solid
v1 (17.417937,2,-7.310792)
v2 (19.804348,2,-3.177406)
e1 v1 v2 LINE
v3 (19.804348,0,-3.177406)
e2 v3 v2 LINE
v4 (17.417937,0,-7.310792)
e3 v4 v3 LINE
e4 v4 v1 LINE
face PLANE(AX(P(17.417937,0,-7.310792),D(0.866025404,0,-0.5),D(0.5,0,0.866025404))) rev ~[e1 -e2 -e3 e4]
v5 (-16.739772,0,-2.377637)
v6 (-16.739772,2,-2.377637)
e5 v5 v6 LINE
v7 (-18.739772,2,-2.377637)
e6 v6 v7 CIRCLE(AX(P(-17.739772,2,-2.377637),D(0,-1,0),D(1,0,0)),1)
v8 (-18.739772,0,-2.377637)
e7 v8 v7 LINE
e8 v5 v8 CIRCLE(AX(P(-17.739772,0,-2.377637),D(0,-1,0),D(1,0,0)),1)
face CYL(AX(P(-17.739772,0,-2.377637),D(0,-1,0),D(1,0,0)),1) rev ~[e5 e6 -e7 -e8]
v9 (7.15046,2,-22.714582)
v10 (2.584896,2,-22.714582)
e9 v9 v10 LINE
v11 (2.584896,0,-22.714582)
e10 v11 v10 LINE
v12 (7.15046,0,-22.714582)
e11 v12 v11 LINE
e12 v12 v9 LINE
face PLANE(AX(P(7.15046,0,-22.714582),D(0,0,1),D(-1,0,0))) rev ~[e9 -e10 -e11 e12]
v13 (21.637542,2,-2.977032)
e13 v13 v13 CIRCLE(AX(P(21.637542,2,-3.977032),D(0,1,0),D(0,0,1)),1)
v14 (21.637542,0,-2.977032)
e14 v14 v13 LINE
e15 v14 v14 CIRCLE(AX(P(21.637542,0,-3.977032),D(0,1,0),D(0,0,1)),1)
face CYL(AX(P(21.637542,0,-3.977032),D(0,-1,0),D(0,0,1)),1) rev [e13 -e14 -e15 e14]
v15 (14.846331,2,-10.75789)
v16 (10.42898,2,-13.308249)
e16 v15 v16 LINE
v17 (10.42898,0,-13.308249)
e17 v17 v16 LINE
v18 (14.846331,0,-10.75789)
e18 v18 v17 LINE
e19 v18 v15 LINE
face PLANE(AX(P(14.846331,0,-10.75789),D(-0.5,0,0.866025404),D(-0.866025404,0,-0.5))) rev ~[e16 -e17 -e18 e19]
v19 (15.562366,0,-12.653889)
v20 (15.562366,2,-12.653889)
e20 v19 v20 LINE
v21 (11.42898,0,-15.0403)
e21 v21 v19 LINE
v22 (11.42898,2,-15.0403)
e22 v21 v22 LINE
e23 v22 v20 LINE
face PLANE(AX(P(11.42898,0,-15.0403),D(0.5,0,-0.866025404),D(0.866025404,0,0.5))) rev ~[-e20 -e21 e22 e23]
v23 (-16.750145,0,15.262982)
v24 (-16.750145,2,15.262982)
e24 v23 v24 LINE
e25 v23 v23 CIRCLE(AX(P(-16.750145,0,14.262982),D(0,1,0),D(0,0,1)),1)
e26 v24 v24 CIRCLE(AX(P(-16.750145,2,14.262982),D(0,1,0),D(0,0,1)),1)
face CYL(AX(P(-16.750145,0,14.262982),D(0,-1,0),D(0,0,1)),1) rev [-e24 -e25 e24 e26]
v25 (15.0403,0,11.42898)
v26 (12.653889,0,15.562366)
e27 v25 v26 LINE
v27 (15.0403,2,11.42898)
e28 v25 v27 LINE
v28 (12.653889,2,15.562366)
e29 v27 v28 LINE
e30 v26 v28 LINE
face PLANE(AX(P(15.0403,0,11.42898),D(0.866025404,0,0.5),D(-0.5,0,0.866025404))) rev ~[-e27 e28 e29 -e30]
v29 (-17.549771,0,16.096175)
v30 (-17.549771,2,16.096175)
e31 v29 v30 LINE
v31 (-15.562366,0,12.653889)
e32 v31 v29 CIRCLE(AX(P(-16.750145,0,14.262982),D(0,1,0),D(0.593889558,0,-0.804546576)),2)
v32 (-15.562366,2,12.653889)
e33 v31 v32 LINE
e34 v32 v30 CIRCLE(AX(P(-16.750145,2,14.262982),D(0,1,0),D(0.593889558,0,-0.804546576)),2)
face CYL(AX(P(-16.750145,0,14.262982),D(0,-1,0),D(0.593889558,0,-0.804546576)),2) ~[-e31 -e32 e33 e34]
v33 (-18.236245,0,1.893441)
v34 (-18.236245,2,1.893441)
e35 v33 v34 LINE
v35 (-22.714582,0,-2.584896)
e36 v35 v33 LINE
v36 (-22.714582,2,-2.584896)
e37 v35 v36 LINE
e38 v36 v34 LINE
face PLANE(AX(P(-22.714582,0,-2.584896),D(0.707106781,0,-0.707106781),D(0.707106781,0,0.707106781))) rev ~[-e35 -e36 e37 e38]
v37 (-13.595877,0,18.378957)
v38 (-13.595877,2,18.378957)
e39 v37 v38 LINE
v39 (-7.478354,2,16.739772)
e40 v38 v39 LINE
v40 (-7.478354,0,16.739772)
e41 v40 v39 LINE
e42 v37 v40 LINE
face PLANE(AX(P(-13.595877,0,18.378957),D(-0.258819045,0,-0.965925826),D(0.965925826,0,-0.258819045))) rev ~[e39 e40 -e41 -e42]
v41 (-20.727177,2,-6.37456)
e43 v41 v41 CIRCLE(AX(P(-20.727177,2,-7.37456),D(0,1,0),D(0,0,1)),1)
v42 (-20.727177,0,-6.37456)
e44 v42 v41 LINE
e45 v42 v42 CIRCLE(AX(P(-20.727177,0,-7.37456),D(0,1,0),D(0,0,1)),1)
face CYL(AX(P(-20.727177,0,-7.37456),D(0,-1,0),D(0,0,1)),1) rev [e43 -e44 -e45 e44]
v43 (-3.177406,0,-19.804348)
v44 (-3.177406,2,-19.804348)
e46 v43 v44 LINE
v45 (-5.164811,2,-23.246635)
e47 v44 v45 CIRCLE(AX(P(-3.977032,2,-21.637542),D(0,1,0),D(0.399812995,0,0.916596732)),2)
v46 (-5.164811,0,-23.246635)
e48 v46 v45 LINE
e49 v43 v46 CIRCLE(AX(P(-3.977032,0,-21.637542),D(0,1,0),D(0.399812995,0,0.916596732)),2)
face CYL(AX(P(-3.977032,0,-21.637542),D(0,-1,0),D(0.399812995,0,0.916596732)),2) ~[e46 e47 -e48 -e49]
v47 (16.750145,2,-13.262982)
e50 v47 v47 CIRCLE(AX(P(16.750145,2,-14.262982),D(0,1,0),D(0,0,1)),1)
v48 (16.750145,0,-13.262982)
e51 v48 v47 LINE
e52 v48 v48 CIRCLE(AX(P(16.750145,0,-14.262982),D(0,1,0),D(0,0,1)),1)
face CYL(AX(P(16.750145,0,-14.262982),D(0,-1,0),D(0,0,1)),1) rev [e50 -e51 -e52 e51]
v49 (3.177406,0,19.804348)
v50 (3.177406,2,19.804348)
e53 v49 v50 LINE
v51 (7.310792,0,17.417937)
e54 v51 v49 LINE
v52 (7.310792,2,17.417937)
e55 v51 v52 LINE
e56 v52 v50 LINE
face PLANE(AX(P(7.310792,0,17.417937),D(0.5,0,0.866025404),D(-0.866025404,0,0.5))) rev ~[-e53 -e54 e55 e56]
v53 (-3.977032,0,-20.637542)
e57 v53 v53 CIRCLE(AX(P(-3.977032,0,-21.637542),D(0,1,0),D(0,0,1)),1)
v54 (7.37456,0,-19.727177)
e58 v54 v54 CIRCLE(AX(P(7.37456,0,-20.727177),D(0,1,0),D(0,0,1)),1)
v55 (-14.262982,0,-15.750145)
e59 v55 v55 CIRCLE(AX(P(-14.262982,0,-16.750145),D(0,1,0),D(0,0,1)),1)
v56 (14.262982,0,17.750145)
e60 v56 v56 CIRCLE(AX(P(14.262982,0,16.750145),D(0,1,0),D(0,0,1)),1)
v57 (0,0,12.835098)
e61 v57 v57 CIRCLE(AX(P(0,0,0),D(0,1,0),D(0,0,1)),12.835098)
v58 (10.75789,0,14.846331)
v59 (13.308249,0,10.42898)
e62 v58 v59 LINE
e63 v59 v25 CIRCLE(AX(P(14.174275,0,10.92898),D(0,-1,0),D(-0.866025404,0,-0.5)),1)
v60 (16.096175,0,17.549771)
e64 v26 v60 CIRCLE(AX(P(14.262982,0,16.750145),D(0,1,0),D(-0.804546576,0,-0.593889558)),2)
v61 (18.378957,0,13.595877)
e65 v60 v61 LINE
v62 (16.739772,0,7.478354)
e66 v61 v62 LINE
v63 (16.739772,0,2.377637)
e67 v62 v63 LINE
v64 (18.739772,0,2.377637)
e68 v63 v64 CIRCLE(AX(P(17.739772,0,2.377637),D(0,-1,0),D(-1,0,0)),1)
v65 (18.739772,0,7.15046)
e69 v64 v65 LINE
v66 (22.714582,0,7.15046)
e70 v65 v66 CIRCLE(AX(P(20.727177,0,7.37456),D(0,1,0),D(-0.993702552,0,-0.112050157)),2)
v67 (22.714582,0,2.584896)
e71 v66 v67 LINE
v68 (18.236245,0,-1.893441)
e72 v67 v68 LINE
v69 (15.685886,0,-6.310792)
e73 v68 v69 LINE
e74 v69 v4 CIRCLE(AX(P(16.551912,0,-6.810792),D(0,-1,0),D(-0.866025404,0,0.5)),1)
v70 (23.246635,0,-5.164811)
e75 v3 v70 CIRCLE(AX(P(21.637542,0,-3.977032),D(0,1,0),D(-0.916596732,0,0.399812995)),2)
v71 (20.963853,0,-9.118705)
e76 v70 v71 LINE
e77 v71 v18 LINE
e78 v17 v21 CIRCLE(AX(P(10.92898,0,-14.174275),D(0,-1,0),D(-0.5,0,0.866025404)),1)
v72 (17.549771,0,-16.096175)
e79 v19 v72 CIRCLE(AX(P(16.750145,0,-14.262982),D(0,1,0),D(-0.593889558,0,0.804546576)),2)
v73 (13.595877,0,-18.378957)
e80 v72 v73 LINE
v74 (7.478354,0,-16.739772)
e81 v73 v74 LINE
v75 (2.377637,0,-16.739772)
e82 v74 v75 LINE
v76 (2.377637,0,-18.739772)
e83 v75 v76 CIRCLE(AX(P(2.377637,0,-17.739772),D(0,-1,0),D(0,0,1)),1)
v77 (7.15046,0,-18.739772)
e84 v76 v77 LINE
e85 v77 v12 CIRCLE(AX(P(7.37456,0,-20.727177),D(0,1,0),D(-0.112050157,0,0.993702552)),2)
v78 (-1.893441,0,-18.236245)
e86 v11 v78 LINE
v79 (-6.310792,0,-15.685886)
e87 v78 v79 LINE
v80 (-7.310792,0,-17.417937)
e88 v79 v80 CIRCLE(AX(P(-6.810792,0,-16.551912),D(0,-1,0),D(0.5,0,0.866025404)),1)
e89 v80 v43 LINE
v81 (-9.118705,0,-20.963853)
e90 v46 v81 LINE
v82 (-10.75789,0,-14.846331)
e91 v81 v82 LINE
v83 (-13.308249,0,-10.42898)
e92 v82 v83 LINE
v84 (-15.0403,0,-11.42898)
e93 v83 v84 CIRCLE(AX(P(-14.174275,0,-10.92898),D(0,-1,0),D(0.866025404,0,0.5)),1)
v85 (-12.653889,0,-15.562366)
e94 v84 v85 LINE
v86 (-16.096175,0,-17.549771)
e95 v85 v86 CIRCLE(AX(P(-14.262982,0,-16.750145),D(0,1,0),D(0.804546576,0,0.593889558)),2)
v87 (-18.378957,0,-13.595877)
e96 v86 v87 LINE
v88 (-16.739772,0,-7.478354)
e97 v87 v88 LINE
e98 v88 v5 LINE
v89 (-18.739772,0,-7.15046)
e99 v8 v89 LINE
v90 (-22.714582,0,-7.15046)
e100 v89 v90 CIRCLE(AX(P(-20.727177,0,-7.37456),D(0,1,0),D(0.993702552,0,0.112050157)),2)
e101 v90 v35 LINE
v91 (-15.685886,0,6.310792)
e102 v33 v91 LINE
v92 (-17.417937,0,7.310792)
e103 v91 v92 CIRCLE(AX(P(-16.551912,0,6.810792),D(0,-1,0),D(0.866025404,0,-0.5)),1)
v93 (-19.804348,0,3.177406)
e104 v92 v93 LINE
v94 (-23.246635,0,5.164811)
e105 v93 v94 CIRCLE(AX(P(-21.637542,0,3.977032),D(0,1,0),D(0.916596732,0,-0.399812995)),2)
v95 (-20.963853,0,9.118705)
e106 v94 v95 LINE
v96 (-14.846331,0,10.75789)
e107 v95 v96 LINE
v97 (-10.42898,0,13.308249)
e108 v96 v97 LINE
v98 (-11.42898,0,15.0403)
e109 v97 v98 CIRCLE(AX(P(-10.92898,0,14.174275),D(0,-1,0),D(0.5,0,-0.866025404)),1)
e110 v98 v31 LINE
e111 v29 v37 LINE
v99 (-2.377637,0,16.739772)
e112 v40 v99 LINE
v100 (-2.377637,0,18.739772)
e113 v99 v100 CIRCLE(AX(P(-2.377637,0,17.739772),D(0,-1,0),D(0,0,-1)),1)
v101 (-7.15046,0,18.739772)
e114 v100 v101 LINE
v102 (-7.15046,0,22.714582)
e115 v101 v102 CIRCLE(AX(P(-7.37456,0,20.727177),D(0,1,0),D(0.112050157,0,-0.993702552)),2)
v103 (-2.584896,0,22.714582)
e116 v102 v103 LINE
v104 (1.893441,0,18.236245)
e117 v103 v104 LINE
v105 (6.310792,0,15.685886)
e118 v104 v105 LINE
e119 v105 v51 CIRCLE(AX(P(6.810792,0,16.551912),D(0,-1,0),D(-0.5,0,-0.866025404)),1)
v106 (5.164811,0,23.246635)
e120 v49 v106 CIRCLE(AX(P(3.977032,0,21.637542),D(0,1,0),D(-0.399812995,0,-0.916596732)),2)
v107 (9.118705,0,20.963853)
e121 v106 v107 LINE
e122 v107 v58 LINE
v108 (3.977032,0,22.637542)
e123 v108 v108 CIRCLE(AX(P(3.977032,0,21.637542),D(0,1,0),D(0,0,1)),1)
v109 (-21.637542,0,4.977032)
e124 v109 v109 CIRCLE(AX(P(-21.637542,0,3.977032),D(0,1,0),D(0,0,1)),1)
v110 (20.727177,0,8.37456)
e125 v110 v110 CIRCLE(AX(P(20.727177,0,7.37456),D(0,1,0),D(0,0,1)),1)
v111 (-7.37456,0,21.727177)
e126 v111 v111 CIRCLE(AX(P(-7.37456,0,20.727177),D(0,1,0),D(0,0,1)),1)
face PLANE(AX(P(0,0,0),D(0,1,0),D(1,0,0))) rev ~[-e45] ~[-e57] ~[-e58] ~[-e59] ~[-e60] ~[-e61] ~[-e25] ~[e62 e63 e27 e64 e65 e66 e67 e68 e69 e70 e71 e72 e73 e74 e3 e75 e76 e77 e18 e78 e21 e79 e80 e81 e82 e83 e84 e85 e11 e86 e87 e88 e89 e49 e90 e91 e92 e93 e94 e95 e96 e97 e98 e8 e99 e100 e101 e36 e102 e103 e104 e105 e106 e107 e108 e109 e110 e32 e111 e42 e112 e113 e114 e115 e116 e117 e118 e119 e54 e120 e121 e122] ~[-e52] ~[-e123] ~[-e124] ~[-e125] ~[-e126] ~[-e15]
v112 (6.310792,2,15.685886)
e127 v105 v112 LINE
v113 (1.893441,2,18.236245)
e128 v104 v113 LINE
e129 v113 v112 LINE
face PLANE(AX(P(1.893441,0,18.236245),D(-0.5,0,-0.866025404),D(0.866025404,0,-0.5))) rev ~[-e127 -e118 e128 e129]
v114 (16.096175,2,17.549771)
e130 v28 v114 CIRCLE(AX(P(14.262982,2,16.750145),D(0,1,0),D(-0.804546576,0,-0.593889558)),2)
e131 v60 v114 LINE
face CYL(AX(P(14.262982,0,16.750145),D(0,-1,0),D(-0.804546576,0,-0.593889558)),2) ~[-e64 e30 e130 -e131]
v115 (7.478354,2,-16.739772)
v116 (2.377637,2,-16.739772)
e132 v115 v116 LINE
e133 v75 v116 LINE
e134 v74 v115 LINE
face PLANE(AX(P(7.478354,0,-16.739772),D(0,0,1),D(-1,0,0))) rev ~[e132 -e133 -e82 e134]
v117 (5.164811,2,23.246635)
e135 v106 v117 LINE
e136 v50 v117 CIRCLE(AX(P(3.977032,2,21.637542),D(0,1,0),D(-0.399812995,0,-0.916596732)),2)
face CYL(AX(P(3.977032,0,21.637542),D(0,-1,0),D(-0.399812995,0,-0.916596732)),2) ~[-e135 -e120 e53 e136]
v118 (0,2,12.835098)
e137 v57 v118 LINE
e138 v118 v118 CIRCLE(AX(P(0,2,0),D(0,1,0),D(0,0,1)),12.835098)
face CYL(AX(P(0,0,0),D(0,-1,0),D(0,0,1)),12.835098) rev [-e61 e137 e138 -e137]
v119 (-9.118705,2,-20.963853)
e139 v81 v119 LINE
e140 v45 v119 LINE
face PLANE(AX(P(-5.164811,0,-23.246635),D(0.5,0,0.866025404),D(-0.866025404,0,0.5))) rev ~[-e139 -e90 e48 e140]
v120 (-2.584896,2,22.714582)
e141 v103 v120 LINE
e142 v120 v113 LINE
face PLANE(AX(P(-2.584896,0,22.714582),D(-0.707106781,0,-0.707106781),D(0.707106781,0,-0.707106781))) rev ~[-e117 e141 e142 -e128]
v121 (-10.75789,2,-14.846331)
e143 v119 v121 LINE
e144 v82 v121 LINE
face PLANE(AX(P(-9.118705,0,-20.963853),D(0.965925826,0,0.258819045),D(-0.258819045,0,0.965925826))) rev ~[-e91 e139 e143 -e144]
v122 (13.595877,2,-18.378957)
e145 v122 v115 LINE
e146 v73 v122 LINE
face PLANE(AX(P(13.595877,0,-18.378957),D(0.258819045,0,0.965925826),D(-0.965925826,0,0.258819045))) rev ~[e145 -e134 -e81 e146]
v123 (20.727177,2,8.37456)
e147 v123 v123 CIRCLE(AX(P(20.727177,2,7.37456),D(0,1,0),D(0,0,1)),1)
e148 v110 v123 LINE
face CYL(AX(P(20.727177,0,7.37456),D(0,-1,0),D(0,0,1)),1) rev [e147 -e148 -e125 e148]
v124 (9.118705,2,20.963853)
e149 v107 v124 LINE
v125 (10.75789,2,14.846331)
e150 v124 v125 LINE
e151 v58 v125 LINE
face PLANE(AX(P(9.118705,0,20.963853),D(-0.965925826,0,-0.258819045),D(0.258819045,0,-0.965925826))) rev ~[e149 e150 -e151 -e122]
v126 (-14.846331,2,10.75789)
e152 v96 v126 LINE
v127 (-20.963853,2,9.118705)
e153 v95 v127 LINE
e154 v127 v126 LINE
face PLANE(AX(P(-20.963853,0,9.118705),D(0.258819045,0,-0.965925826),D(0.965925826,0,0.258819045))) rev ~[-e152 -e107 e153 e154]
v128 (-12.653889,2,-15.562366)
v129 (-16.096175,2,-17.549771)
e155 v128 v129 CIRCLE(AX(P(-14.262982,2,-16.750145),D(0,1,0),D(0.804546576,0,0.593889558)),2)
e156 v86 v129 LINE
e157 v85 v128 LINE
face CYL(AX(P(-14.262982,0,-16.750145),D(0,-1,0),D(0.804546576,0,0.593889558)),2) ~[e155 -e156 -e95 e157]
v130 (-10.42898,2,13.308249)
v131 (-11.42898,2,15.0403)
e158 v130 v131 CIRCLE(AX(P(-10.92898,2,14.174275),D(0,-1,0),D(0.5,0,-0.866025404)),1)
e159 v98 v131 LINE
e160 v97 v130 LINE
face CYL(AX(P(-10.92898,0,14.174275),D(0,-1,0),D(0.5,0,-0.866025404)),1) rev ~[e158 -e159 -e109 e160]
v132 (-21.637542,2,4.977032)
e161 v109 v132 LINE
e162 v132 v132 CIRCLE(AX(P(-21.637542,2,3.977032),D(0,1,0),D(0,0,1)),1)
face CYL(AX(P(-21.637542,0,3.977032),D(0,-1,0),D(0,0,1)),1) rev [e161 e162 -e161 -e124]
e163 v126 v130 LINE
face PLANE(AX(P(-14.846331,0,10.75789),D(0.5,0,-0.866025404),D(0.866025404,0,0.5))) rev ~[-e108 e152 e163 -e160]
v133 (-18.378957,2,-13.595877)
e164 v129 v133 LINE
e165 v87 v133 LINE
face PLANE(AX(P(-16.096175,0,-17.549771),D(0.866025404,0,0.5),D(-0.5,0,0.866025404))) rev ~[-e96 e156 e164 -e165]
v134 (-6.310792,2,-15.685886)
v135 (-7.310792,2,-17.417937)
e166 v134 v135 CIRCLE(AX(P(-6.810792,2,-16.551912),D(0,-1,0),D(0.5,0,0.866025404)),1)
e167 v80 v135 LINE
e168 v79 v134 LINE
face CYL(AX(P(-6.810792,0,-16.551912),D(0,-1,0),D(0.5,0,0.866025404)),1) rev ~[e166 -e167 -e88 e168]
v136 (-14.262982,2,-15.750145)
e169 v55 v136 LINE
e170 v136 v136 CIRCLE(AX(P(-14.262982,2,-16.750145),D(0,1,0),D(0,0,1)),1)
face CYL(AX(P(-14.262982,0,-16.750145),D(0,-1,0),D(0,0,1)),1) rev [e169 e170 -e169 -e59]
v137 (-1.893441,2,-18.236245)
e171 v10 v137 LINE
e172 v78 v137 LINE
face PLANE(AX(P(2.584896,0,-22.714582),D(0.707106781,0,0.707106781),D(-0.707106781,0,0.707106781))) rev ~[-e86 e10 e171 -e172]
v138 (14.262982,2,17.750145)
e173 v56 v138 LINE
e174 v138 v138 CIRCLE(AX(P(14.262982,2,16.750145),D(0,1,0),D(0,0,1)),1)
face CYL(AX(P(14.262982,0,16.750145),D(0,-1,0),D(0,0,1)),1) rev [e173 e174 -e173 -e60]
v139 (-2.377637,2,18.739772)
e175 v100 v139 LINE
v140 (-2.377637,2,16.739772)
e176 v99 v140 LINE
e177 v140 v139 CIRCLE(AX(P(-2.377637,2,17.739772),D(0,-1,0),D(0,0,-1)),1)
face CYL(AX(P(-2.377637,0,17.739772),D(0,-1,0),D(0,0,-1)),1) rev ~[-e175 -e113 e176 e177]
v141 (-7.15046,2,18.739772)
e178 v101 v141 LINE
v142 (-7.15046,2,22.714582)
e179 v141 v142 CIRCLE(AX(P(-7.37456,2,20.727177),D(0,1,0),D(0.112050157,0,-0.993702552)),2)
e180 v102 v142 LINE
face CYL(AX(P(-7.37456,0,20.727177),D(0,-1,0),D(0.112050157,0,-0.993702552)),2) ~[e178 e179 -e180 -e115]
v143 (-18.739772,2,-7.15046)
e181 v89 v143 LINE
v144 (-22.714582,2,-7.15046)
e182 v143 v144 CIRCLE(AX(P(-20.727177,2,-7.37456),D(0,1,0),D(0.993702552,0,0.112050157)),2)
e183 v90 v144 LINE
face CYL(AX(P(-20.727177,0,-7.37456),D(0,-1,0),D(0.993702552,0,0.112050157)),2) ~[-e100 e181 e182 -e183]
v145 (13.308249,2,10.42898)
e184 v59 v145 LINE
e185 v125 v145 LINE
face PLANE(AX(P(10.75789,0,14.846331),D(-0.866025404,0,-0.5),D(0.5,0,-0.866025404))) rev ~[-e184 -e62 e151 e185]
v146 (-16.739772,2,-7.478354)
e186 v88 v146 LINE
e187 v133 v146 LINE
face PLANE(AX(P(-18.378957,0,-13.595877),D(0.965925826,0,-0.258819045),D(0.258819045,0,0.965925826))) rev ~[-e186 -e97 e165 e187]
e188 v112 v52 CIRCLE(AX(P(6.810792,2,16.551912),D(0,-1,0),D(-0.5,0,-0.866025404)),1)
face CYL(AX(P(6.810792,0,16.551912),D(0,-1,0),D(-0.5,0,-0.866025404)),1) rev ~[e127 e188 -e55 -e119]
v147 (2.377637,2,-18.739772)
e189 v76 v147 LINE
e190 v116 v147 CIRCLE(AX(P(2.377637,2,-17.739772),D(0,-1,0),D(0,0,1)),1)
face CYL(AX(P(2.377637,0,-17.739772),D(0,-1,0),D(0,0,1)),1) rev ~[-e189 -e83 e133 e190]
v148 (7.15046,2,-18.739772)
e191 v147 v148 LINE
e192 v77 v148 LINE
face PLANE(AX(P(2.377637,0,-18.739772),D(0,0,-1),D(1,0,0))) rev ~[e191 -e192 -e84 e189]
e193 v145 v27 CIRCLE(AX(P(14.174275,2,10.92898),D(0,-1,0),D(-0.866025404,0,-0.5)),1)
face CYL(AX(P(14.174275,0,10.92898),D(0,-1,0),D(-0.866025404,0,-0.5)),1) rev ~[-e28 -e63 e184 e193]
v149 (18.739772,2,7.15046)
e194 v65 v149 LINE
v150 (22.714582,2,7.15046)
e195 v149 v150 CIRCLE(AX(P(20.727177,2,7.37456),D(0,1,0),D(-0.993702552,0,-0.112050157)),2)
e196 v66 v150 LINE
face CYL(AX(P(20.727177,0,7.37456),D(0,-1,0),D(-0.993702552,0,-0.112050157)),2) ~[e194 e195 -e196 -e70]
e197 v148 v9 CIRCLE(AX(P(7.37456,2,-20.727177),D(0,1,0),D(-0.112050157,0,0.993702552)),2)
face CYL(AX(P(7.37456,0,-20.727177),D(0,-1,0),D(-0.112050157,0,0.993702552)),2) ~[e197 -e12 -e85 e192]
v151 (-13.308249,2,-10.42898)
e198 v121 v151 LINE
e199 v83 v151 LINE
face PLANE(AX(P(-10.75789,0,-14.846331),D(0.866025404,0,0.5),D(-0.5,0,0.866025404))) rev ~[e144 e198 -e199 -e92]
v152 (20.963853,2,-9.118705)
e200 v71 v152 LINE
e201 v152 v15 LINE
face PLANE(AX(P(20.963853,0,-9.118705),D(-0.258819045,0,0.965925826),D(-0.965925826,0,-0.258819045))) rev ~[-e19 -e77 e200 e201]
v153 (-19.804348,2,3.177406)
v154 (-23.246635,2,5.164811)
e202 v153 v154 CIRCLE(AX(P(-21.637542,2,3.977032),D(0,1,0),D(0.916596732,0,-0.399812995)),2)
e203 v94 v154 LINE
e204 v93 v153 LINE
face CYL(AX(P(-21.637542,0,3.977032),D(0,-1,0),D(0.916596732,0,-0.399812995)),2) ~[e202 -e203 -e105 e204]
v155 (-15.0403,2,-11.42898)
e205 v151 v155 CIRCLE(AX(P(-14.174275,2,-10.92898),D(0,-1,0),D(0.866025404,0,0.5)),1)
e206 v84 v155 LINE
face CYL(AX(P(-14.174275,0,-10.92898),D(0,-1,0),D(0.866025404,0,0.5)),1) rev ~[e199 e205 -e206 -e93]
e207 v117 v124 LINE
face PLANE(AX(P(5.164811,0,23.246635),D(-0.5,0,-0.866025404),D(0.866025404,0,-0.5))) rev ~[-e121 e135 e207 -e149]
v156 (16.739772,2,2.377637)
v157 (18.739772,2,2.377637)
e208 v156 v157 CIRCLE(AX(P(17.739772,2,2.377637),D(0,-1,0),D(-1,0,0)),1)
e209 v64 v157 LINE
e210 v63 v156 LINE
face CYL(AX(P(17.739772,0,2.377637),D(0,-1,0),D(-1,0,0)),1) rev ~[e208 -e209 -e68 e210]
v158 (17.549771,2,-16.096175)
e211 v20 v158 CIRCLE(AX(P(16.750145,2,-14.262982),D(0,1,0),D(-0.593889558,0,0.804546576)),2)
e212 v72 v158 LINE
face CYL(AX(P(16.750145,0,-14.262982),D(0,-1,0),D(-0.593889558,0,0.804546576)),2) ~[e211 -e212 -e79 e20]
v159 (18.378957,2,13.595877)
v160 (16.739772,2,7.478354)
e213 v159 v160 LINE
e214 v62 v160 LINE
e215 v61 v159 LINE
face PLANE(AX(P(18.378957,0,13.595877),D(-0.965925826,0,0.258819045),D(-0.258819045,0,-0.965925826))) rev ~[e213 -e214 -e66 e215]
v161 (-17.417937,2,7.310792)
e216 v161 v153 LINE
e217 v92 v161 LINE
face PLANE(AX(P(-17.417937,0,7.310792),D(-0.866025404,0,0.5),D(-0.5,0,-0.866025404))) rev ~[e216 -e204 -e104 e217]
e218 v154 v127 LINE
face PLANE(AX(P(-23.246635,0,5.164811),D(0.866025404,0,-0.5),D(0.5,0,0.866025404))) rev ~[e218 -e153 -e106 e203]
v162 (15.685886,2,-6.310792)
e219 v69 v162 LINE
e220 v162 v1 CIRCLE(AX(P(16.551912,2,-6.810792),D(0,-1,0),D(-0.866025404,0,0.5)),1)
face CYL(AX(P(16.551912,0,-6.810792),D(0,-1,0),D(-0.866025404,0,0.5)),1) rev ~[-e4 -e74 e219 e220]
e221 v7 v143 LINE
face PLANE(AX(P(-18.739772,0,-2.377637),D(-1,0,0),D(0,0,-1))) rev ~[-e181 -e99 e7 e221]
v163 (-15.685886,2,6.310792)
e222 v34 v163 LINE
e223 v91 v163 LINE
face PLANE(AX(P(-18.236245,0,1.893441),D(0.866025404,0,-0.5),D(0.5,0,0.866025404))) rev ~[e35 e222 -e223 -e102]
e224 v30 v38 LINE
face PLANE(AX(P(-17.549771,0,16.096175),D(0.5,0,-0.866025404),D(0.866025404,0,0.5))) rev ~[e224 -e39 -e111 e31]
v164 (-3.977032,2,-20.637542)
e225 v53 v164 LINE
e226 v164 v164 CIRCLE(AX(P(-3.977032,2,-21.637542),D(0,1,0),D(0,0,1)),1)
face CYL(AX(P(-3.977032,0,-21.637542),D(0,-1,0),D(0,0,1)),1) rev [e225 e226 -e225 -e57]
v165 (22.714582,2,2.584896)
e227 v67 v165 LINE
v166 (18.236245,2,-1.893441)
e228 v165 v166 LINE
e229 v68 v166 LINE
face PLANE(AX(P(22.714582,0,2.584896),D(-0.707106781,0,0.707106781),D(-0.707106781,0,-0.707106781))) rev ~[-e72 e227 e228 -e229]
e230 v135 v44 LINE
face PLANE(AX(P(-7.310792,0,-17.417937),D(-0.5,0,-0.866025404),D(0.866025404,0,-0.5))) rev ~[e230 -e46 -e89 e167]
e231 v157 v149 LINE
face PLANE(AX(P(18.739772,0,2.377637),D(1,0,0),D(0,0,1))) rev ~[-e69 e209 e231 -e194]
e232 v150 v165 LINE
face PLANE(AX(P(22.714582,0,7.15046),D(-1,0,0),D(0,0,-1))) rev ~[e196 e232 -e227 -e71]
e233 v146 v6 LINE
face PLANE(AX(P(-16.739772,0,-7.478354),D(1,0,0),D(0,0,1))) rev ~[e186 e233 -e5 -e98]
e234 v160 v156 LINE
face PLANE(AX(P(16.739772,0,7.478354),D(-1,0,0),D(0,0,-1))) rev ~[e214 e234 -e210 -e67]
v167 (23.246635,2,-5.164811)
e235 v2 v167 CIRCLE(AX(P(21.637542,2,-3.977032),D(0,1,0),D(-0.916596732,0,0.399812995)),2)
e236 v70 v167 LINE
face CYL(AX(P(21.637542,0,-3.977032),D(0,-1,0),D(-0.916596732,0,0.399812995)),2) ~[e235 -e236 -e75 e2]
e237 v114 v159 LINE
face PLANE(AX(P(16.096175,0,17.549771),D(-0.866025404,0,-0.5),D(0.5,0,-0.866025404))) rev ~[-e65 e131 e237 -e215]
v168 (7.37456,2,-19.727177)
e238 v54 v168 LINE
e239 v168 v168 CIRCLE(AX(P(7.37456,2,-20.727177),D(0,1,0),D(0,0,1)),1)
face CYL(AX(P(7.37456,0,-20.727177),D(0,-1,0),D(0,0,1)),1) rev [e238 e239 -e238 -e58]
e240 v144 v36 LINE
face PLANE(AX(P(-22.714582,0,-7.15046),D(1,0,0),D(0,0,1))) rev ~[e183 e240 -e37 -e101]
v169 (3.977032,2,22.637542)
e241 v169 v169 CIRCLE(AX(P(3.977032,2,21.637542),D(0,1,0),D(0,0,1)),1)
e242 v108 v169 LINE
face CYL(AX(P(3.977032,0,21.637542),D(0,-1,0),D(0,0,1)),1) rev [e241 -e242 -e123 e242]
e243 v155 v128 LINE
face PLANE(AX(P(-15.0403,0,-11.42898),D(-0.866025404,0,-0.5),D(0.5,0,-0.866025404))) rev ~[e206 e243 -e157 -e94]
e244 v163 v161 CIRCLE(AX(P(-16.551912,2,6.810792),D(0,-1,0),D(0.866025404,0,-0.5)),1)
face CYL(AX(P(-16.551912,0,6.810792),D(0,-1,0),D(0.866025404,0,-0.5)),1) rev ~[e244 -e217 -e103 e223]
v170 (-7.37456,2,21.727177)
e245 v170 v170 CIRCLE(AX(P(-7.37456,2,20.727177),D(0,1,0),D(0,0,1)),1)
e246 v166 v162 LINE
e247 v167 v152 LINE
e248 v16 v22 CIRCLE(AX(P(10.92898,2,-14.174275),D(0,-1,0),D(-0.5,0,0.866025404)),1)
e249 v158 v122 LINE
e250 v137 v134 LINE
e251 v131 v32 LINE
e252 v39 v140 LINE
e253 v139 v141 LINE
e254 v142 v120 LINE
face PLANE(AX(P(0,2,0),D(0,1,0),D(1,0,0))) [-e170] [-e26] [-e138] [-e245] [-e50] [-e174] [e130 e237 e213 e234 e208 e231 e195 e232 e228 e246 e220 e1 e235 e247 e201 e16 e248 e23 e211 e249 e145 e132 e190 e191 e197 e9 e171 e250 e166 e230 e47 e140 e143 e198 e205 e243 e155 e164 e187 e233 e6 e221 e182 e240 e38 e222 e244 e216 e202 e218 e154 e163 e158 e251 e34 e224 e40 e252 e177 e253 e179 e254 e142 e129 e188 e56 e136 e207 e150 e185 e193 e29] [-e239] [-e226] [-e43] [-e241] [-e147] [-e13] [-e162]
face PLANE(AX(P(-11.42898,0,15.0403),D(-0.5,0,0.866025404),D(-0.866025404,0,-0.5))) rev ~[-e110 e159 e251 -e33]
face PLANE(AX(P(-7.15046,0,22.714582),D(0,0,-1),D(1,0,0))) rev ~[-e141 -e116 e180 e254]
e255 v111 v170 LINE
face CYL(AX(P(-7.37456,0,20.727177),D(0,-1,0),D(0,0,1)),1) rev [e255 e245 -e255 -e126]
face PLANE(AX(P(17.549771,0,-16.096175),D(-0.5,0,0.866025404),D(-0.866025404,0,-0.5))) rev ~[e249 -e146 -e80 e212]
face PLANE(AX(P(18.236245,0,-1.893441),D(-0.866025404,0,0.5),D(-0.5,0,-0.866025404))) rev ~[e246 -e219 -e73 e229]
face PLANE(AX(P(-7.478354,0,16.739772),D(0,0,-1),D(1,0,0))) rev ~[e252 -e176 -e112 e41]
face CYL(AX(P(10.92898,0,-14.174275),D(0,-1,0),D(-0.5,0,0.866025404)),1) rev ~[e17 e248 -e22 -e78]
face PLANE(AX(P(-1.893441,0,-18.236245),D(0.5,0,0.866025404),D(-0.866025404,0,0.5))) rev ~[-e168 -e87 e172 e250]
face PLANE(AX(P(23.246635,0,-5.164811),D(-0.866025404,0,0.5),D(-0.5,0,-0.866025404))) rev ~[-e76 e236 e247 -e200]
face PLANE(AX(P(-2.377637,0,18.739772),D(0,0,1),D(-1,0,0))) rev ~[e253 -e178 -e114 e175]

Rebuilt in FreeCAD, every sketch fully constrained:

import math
import FreeCAD as App
import Part
import Sketcher

V = App.Vector
Q = App.Units.Quantity

doc = App.newDocument("Part")
body = doc.addObject("PartDesign::Body", "Body")

# Sketch on XZ plane
sketch1 = doc.addObject("Sketcher::SketchObject", "Sketch")
body.addObject(sketch1)
sketch1.AttachmentSupport = (doc.XZ_Plane, [""])
sketch1.MapMode = "FlatFace"
sketch1.addGeometry(Part.LineSegment(V(7.2, -22.7, 0), V(2.6, -22.7, 0)), False)
sketch1.addGeometry(Part.LineSegment(V(2.6, -22.7, 0), V(-1.9, -18.2, 0)), False)
sketch1.addGeometry(Part.LineSegment(V(-1.9, -18.2, 0), V(-6.3, -15.7, 0)), False)
sketch1.addGeometry(Part.ArcOfCircle(Part.Circle(V(-6.8, -16.6, 0), V(0, 0, 1), 1), math.radians(60), math.radians(240)), False)
sketch1.addGeometry(Part.LineSegment(V(-7.3, -17.4, 0), V(-3.2, -19.8, 0)), False)
sketch1.addGeometry(Part.ArcOfCircle(Part.Circle(V(-4, -21.6, 0), V(0, 0, 1), 2), math.radians(-126), math.radians(66)), False)
sketch1.addGeometry(Part.LineSegment(V(-5.2, -23.2, 0), V(-9.1, -21, 0)), False)
sketch1.addGeometry(Part.LineSegment(V(-9.1, -21, 0), V(-10.8, -14.8, 0)), False)
sketch1.addGeometry(Part.LineSegment(V(-10.8, -14.8, 0), V(-13.3, -10.4, 0)), False)
sketch1.addGeometry(Part.ArcOfCircle(Part.Circle(V(-14.2, -10.9, 0), V(0, 0, 1), 1), math.radians(30), math.radians(210)), False)
sketch1.addGeometry(Part.LineSegment(V(-15, -11.4, 0), V(-12.7, -15.6, 0)), False)
sketch1.addGeometry(Part.ArcOfCircle(Part.Circle(V(-14.3, -16.8, 0), V(0, 0, 1), 2), math.radians(-156), math.radians(36)), False)
sketch1.addGeometry(Part.LineSegment(V(-16.1, -17.5, 0), V(-18.4, -13.6, 0)), False)
sketch1.addGeometry(Part.LineSegment(V(-18.4, -13.6, 0), V(-16.7, -7.5, 0)), False)
sketch1.addGeometry(Part.LineSegment(V(-16.7, -7.5, 0), V(-16.7, -2.4, 0)), False)
sketch1.addGeometry(Part.ArcOfCircle(Part.Circle(V(-17.7, -2.4, 0), V(0, 0, 1), 1), math.radians(0), math.radians(180)), False)
sketch1.addGeometry(Part.LineSegment(V(-18.7, -2.4, 0), V(-18.7, -7.2, 0)), False)
sketch1.addGeometry(Part.ArcOfCircle(Part.Circle(V(-20.7, -7.4, 0), V(0, 0, 1), 2), math.radians(174), math.radians(366)), False)
sketch1.addGeometry(Part.LineSegment(V(-22.7, -7.2, 0), V(-22.7, -2.6, 0)), False)
sketch1.addGeometry(Part.LineSegment(V(-22.7, -2.6, 0), V(-18.2, 1.9, 0)), False)
sketch1.addGeometry(Part.LineSegment(V(-18.2, 1.9, 0), V(-15.7, 6.3, 0)), False)
sketch1.addGeometry(Part.ArcOfCircle(Part.Circle(V(-16.6, 6.8, 0), V(0, 0, 1), 1), math.radians(-30), math.radians(150)), False)
sketch1.addGeometry(Part.LineSegment(V(-17.4, 7.3, 0), V(-19.8, 3.2, 0)), False)
sketch1.addGeometry(Part.ArcOfCircle(Part.Circle(V(-21.6, 4, 0), V(0, 0, 1), 2), math.radians(144), math.radians(336)), False)
sketch1.addGeometry(Part.LineSegment(V(-23.2, 5.2, 0), V(-21, 9.1, 0)), False)
sketch1.addGeometry(Part.LineSegment(V(-21, 9.1, 0), V(-14.8, 10.8, 0)), False)
sketch1.addGeometry(Part.LineSegment(V(-14.8, 10.8, 0), V(-10.4, 13.3, 0)), False)
sketch1.addGeometry(Part.ArcOfCircle(Part.Circle(V(-10.9, 14.2, 0), V(0, 0, 1), 1), math.radians(-60), math.radians(120)), False)
sketch1.addGeometry(Part.LineSegment(V(-11.4, 15, 0), V(-15.6, 12.7, 0)), False)
sketch1.addGeometry(Part.ArcOfCircle(Part.Circle(V(-16.8, 14.3, 0), V(0, 0, 1), 2), math.radians(114), math.radians(306)), False)
sketch1.addGeometry(Part.LineSegment(V(-17.5, 16.1, 0), V(-13.6, 18.4, 0)), False)
sketch1.addGeometry(Part.LineSegment(V(-13.6, 18.4, 0), V(-7.5, 16.7, 0)), False)
sketch1.addGeometry(Part.LineSegment(V(-7.5, 16.7, 0), V(-2.4, 16.7, 0)), False)
sketch1.addGeometry(Part.ArcOfCircle(Part.Circle(V(-2.4, 17.7, 0), V(0, 0, 1), 1), math.radians(-90), math.radians(90)), False)
sketch1.addGeometry(Part.LineSegment(V(-2.4, 18.7, 0), V(-7.2, 18.7, 0)), False)
sketch1.addGeometry(Part.ArcOfCircle(Part.Circle(V(-7.4, 20.7, 0), V(0, 0, 1), 2), math.radians(84), math.radians(276)), False)
sketch1.addGeometry(Part.LineSegment(V(-7.2, 22.7, 0), V(-2.6, 22.7, 0)), False)
sketch1.addGeometry(Part.LineSegment(V(-2.6, 22.7, 0), V(1.9, 18.2, 0)), False)
sketch1.addGeometry(Part.LineSegment(V(1.9, 18.2, 0), V(6.3, 15.7, 0)), False)
sketch1.addGeometry(Part.ArcOfCircle(Part.Circle(V(6.8, 16.6, 0), V(0, 0, 1), 1), math.radians(-120), math.radians(60)), False)
sketch1.addGeometry(Part.LineSegment(V(7.3, 17.4, 0), V(3.2, 19.8, 0)), False)
sketch1.addGeometry(Part.ArcOfCircle(Part.Circle(V(4, 21.6, 0), V(0, 0, 1), 2), math.radians(54), math.radians(246)), False)
sketch1.addGeometry(Part.LineSegment(V(5.2, 23.2, 0), V(9.1, 21, 0)), False)
sketch1.addGeometry(Part.LineSegment(V(9.1, 21, 0), V(10.8, 14.8, 0)), False)
sketch1.addGeometry(Part.LineSegment(V(10.8, 14.8, 0), V(13.3, 10.4, 0)), False)
sketch1.addGeometry(Part.ArcOfCircle(Part.Circle(V(14.2, 10.9, 0), V(0, 0, 1), 1), math.radians(-150), math.radians(30)), False)
sketch1.addGeometry(Part.LineSegment(V(15, 11.4, 0), V(12.7, 15.6, 0)), False)
sketch1.addGeometry(Part.ArcOfCircle(Part.Circle(V(14.3, 16.8, 0), V(0, 0, 1), 2), math.radians(24), math.radians(216)), False)
sketch1.addGeometry(Part.LineSegment(V(16.1, 17.5, 0), V(18.4, 13.6, 0)), False)
sketch1.addGeometry(Part.LineSegment(V(18.4, 13.6, 0), V(16.7, 7.5, 0)), False)
sketch1.addGeometry(Part.LineSegment(V(16.7, 7.5, 0), V(16.7, 2.4, 0)), False)
sketch1.addGeometry(Part.ArcOfCircle(Part.Circle(V(17.7, 2.4, 0), V(0, 0, 1), 1), math.radians(180), math.radians(360)), False)
sketch1.addGeometry(Part.LineSegment(V(18.7, 2.4, 0), V(18.7, 7.2, 0)), False)
sketch1.addGeometry(Part.ArcOfCircle(Part.Circle(V(20.7, 7.4, 0), V(0, 0, 1), 2), math.radians(-6), math.radians(186)), False)
sketch1.addGeometry(Part.LineSegment(V(22.7, 7.2, 0), V(22.7, 2.6, 0)), False)
sketch1.addGeometry(Part.LineSegment(V(22.7, 2.6, 0), V(18.2, -1.9, 0)), False)
sketch1.addGeometry(Part.LineSegment(V(18.2, -1.9, 0), V(15.7, -6.3, 0)), False)
sketch1.addGeometry(Part.ArcOfCircle(Part.Circle(V(16.6, -6.8, 0), V(0, 0, 1), 1), math.radians(150), math.radians(330)), False)
sketch1.addGeometry(Part.LineSegment(V(17.4, -7.3, 0), V(19.8, -3.2, 0)), False)
sketch1.addGeometry(Part.ArcOfCircle(Part.Circle(V(21.6, -4, 0), V(0, 0, 1), 2), math.radians(-36), math.radians(156)), False)
sketch1.addGeometry(Part.LineSegment(V(23.2, -5.2, 0), V(21, -9.1, 0)), False)
sketch1.addGeometry(Part.LineSegment(V(21, -9.1, 0), V(14.8, -10.8, 0)), False)
sketch1.addGeometry(Part.LineSegment(V(14.8, -10.8, 0), V(10.4, -13.3, 0)), False)
sketch1.addGeometry(Part.ArcOfCircle(Part.Circle(V(10.9, -14.2, 0), V(0, 0, 1), 1), math.radians(120), math.radians(300)), False)
sketch1.addGeometry(Part.LineSegment(V(11.4, -15, 0), V(15.6, -12.7, 0)), False)
sketch1.addGeometry(Part.ArcOfCircle(Part.Circle(V(16.8, -14.3, 0), V(0, 0, 1), 2), math.radians(-66), math.radians(126)), False)
sketch1.addGeometry(Part.LineSegment(V(17.5, -16.1, 0), V(13.6, -18.4, 0)), False)
sketch1.addGeometry(Part.LineSegment(V(13.6, -18.4, 0), V(7.5, -16.7, 0)), False)
sketch1.addGeometry(Part.LineSegment(V(7.5, -16.7, 0), V(2.4, -16.7, 0)), False)
sketch1.addGeometry(Part.ArcOfCircle(Part.Circle(V(2.4, -17.7, 0), V(0, 0, 1), 1), math.radians(90), math.radians(270)), False)
sketch1.addGeometry(Part.LineSegment(V(2.4, -18.7, 0), V(7.2, -18.7, 0)), False)
sketch1.addGeometry(Part.ArcOfCircle(Part.Circle(V(7.4, -20.7, 0), V(0, 0, 1), 2), math.radians(-96), math.radians(96)), False)
sketch1.addGeometry(Part.Circle(V(-16.8, 14.3, 0), V(0, 0, 1), 1), False)
sketch1.addGeometry(Part.Circle(V(-7.4, 20.7, 0), V(0, 0, 1), 1), False)
sketch1.addGeometry(Part.Circle(V(-21.6, 4, 0), V(0, 0, 1), 1), False)
sketch1.addGeometry(Part.Circle(V(4, 21.6, 0), V(0, 0, 1), 1), False)
sketch1.addGeometry(Part.Circle(V(14.3, 16.8, 0), V(0, 0, 1), 1), False)
sketch1.addGeometry(Part.Circle(V(20.7, 7.4, 0), V(0, 0, 1), 1), False)
sketch1.addGeometry(Part.Circle(V(-20.7, -7.4, 0), V(0, 0, 1), 1), False)
sketch1.addGeometry(Part.Circle(V(-14.3, -16.8, 0), V(0, 0, 1), 1), False)
sketch1.addGeometry(Part.Circle(V(-4, -21.6, 0), V(0, 0, 1), 1), False)
sketch1.addGeometry(Part.Circle(V(0, 0, 0), V(0, 0, 1), 12.8), False)
sketch1.addGeometry(Part.Circle(V(21.6, -4, 0), V(0, 0, 1), 1), False)
sketch1.addGeometry(Part.Circle(V(7.4, -20.7, 0), V(0, 0, 1), 1), False)
sketch1.addGeometry(Part.Circle(V(16.8, -14.3, 0), V(0, 0, 1), 1), False)
sketch1.addConstraint(Sketcher.Constraint("Coincident", 0, 2, 1, 1))
sketch1.addConstraint(Sketcher.Constraint("Coincident", 1, 2, 2, 1))
sketch1.addConstraint(Sketcher.Constraint("Tangent", 2, 2, 3, 1))
sketch1.addConstraint(Sketcher.Constraint("Tangent", 3, 2, 4, 1))
sketch1.addConstraint(Sketcher.Constraint("Coincident", 4, 2, 5, 2))
sketch1.addConstraint(Sketcher.Constraint("Coincident", 5, 1, 6, 1))
sketch1.addConstraint(Sketcher.Constraint("Coincident", 6, 2, 7, 1))
sketch1.addConstraint(Sketcher.Constraint("Coincident", 7, 2, 8, 1))
sketch1.addConstraint(Sketcher.Constraint("Tangent", 8, 2, 9, 1))
sketch1.addConstraint(Sketcher.Constraint("Tangent", 9, 2, 10, 1))
sketch1.addConstraint(Sketcher.Constraint("Coincident", 10, 2, 11, 2))
sketch1.addConstraint(Sketcher.Constraint("Coincident", 11, 1, 12, 1))
sketch1.addConstraint(Sketcher.Constraint("Coincident", 12, 2, 13, 1))
sketch1.addConstraint(Sketcher.Constraint("Coincident", 13, 2, 14, 1))
sketch1.addConstraint(Sketcher.Constraint("Tangent", 14, 2, 15, 1))
sketch1.addConstraint(Sketcher.Constraint("Tangent", 15, 2, 16, 1))
sketch1.addConstraint(Sketcher.Constraint("Coincident", 16, 2, 17, 2))
sketch1.addConstraint(Sketcher.Constraint("Coincident", 17, 1, 18, 1))
sketch1.addConstraint(Sketcher.Constraint("Coincident", 18, 2, 19, 1))
sketch1.addConstraint(Sketcher.Constraint("Coincident", 19, 2, 20, 1))
sketch1.addConstraint(Sketcher.Constraint("Tangent", 20, 2, 21, 1))
sketch1.addConstraint(Sketcher.Constraint("Tangent", 21, 2, 22, 1))
sketch1.addConstraint(Sketcher.Constraint("Coincident", 22, 2, 23, 2))
sketch1.addConstraint(Sketcher.Constraint("Coincident", 23, 1, 24, 1))
sketch1.addConstraint(Sketcher.Constraint("Coincident", 24, 2, 25, 1))
sketch1.addConstraint(Sketcher.Constraint("Coincident", 25, 2, 26, 1))
sketch1.addConstraint(Sketcher.Constraint("Tangent", 26, 2, 27, 1))
sketch1.addConstraint(Sketcher.Constraint("Tangent", 27, 2, 28, 1))
sketch1.addConstraint(Sketcher.Constraint("Coincident", 28, 2, 29, 2))
sketch1.addConstraint(Sketcher.Constraint("Coincident", 29, 1, 30, 1))
sketch1.addConstraint(Sketcher.Constraint("Coincident", 30, 2, 31, 1))
sketch1.addConstraint(Sketcher.Constraint("Coincident", 31, 2, 32, 1))
sketch1.addConstraint(Sketcher.Constraint("Tangent", 32, 2, 33, 1))
sketch1.addConstraint(Sketcher.Constraint("Tangent", 33, 2, 34, 1))
sketch1.addConstraint(Sketcher.Constraint("Coincident", 34, 2, 35, 2))
sketch1.addConstraint(Sketcher.Constraint("Coincident", 35, 1, 36, 1))
sketch1.addConstraint(Sketcher.Constraint("Coincident", 36, 2, 37, 1))
sketch1.addConstraint(Sketcher.Constraint("Coincident", 37, 2, 38, 1))
sketch1.addConstraint(Sketcher.Constraint("Tangent", 38, 2, 39, 1))
sketch1.addConstraint(Sketcher.Constraint("Tangent", 39, 2, 40, 1))
sketch1.addConstraint(Sketcher.Constraint("Coincident", 40, 2, 41, 2))
sketch1.addConstraint(Sketcher.Constraint("Coincident", 41, 1, 42, 1))
sketch1.addConstraint(Sketcher.Constraint("Coincident", 42, 2, 43, 1))
sketch1.addConstraint(Sketcher.Constraint("Coincident", 43, 2, 44, 1))
sketch1.addConstraint(Sketcher.Constraint("Tangent", 44, 2, 45, 1))
sketch1.addConstraint(Sketcher.Constraint("Tangent", 45, 2, 46, 1))
sketch1.addConstraint(Sketcher.Constraint("Coincident", 46, 2, 47, 2))
sketch1.addConstraint(Sketcher.Constraint("Coincident", 47, 1, 48, 1))
sketch1.addConstraint(Sketcher.Constraint("Coincident", 48, 2, 49, 1))
sketch1.addConstraint(Sketcher.Constraint("Coincident", 49, 2, 50, 1))
sketch1.addConstraint(Sketcher.Constraint("Tangent", 50, 2, 51, 1))
sketch1.addConstraint(Sketcher.Constraint("Tangent", 51, 2, 52, 1))
sketch1.addConstraint(Sketcher.Constraint("Coincident", 52, 2, 53, 2))
sketch1.addConstraint(Sketcher.Constraint("Coincident", 53, 1, 54, 1))
sketch1.addConstraint(Sketcher.Constraint("Coincident", 54, 2, 55, 1))
sketch1.addConstraint(Sketcher.Constraint("Coincident", 55, 2, 56, 1))
sketch1.addConstraint(Sketcher.Constraint("Tangent", 56, 2, 57, 1))
sketch1.addConstraint(Sketcher.Constraint("Tangent", 57, 2, 58, 1))
sketch1.addConstraint(Sketcher.Constraint("Coincident", 58, 2, 59, 2))
sketch1.addConstraint(Sketcher.Constraint("Coincident", 59, 1, 60, 1))
sketch1.addConstraint(Sketcher.Constraint("Coincident", 60, 2, 61, 1))
sketch1.addConstraint(Sketcher.Constraint("Coincident", 61, 2, 62, 1))
sketch1.addConstraint(Sketcher.Constraint("Tangent", 62, 2, 63, 1))
sketch1.addConstraint(Sketcher.Constraint("Tangent", 63, 2, 64, 1))
sketch1.addConstraint(Sketcher.Constraint("Coincident", 64, 2, 65, 2))
sketch1.addConstraint(Sketcher.Constraint("Coincident", 65, 1, 66, 1))
sketch1.addConstraint(Sketcher.Constraint("Coincident", 66, 2, 67, 1))
sketch1.addConstraint(Sketcher.Constraint("Coincident", 67, 2, 68, 1))
sketch1.addConstraint(Sketcher.Constraint("Tangent", 68, 2, 69, 1))
sketch1.addConstraint(Sketcher.Constraint("Tangent", 69, 2, 70, 1))
sketch1.addConstraint(Sketcher.Constraint("Coincident", 70, 2, 71, 2))
sketch1.addConstraint(Sketcher.Constraint("Coincident", 71, 1, 0, 1))
sketch1.addConstraint(Sketcher.Constraint("Horizontal", 0))
sketch1.addConstraint(Sketcher.Constraint("Vertical", 14))
sketch1.addConstraint(Sketcher.Constraint("Vertical", 16))
sketch1.addConstraint(Sketcher.Constraint("Vertical", 18))
sketch1.addConstraint(Sketcher.Constraint("Horizontal", 32))
sketch1.addConstraint(Sketcher.Constraint("Horizontal", 34))
sketch1.addConstraint(Sketcher.Constraint("Horizontal", 36))
sketch1.addConstraint(Sketcher.Constraint("Vertical", 50))
sketch1.addConstraint(Sketcher.Constraint("Vertical", 52))
sketch1.addConstraint(Sketcher.Constraint("Vertical", 54))
sketch1.addConstraint(Sketcher.Constraint("Horizontal", 68))
sketch1.addConstraint(Sketcher.Constraint("Horizontal", 70))
sketch1.addConstraint(Sketcher.Constraint("Coincident", 81, 3, -1, 1))
sketch1.addConstraint(Sketcher.Constraint("Coincident", 72, 3, 29, 3))
sketch1.addConstraint(Sketcher.Constraint("Coincident", 73, 3, 35, 3))
sketch1.addConstraint(Sketcher.Constraint("Coincident", 74, 3, 23, 3))
sketch1.addConstraint(Sketcher.Constraint("Coincident", 75, 3, 41, 3))
sketch1.addConstraint(Sketcher.Constraint("Coincident", 76, 3, 47, 3))
sketch1.addConstraint(Sketcher.Constraint("Coincident", 77, 3, 53, 3))
sketch1.addConstraint(Sketcher.Constraint("Coincident", 78, 3, 17, 3))
sketch1.addConstraint(Sketcher.Constraint("Coincident", 79, 3, 11, 3))
sketch1.addConstraint(Sketcher.Constraint("Coincident", 80, 3, 5, 3))
sketch1.addConstraint(Sketcher.Constraint("Coincident", 82, 3, 59, 3))
sketch1.addConstraint(Sketcher.Constraint("Coincident", 83, 3, 71, 3))
sketch1.addConstraint(Sketcher.Constraint("Coincident", 84, 3, 65, 3))
sketch1.addConstraint(Sketcher.Constraint("Equal", 3, 9))
sketch1.addConstraint(Sketcher.Constraint("Equal", 5, 11))
sketch1.addConstraint(Sketcher.Constraint("Equal", 9, 15))
sketch1.addConstraint(Sketcher.Constraint("Equal", 11, 17))
sketch1.addConstraint(Sketcher.Constraint("Equal", 15, 21))
sketch1.addConstraint(Sketcher.Constraint("Equal", 17, 23))
sketch1.addConstraint(Sketcher.Constraint("Equal", 21, 27))
sketch1.addConstraint(Sketcher.Constraint("Equal", 23, 29))
sketch1.addConstraint(Sketcher.Constraint("Equal", 27, 33))
sketch1.addConstraint(Sketcher.Constraint("Equal", 29, 35))
sketch1.addConstraint(Sketcher.Constraint("Equal", 33, 39))
sketch1.addConstraint(Sketcher.Constraint("Equal", 35, 41))
sketch1.addConstraint(Sketcher.Constraint("Equal", 39, 45))
sketch1.addConstraint(Sketcher.Constraint("Equal", 41, 47))
sketch1.addConstraint(Sketcher.Constraint("Equal", 45, 51))
sketch1.addConstraint(Sketcher.Constraint("Equal", 47, 53))
sketch1.addConstraint(Sketcher.Constraint("Equal", 51, 57))
sketch1.addConstraint(Sketcher.Constraint("Equal", 53, 59))
sketch1.addConstraint(Sketcher.Constraint("Equal", 57, 63))
sketch1.addConstraint(Sketcher.Constraint("Equal", 59, 65))
sketch1.addConstraint(Sketcher.Constraint("Equal", 63, 69))
sketch1.addConstraint(Sketcher.Constraint("Equal", 65, 71))
sketch1.addConstraint(Sketcher.Constraint("Equal", 69, 72))
sketch1.addConstraint(Sketcher.Constraint("Equal", 72, 73))
sketch1.addConstraint(Sketcher.Constraint("Equal", 73, 74))
sketch1.addConstraint(Sketcher.Constraint("Equal", 74, 75))
sketch1.addConstraint(Sketcher.Constraint("Equal", 75, 76))
sketch1.addConstraint(Sketcher.Constraint("Equal", 76, 77))
sketch1.addConstraint(Sketcher.Constraint("Equal", 77, 78))
sketch1.addConstraint(Sketcher.Constraint("Equal", 78, 79))
sketch1.addConstraint(Sketcher.Constraint("Equal", 79, 80))
sketch1.addConstraint(Sketcher.Constraint("Equal", 80, 82))
sketch1.addConstraint(Sketcher.Constraint("Equal", 82, 83))
sketch1.addConstraint(Sketcher.Constraint("Equal", 83, 84))
sketch1.addConstraint(Sketcher.Constraint("Symmetric", 3, 3, 39, 3, -1, 1))
sketch1.addConstraint(Sketcher.Constraint("Symmetric", 5, 3, 41, 3, -1, 1))
sketch1.addConstraint(Sketcher.Constraint("Symmetric", 9, 3, 45, 3, -1, 1))
sketch1.addConstraint(Sketcher.Constraint("Symmetric", 11, 3, 47, 3, -1, 1))
sketch1.addConstraint(Sketcher.Constraint("Symmetric", 15, 3, 51, 3, -1, 1))
sketch1.addConstraint(Sketcher.Constraint("Symmetric", 17, 3, 53, 3, -1, 1))
sketch1.addConstraint(Sketcher.Constraint("Symmetric", 21, 3, 57, 3, -1, 1))
sketch1.addConstraint(Sketcher.Constraint("Symmetric", 23, 3, 59, 3, -1, 1))
sketch1.addConstraint(Sketcher.Constraint("Symmetric", 27, 3, 63, 3, -1, 1))
sketch1.addConstraint(Sketcher.Constraint("Symmetric", 29, 3, 65, 3, -1, 1))
sketch1.addConstraint(Sketcher.Constraint("Symmetric", 33, 3, 69, 3, -1, 1))
sketch1.addConstraint(Sketcher.Constraint("Symmetric", 35, 3, 71, 3, -1, 1))
sketch1.addConstraint(Sketcher.Constraint("Symmetric", 0, 2, 36, 2, -1, 1))
sketch1.addConstraint(Sketcher.Constraint("Symmetric", 1, 2, 37, 2, -1, 1))
sketch1.addConstraint(Sketcher.Constraint("Symmetric", 6, 2, 42, 2, -1, 1))
sketch1.addConstraint(Sketcher.Constraint("Symmetric", 7, 2, 43, 2, -1, 1))
sketch1.addConstraint(Sketcher.Constraint("Symmetric", 12, 2, 48, 2, -1, 1))
sketch1.addConstraint(Sketcher.Constraint("Symmetric", 18, 2, 54, 2, -1, 1))
sketch1.addConstraint(Sketcher.Constraint("Symmetric", 19, 2, 55, 2, -1, 1))
sketch1.addConstraint(Sketcher.Constraint("Symmetric", 24, 2, 60, 2, -1, 1))
sketch1.addConstraint(Sketcher.Constraint("Symmetric", 25, 2, 61, 2, -1, 1))
sketch1.addConstraint(Sketcher.Constraint("Symmetric", 30, 2, 66, 2, -1, 1))
sketch1.addConstraint(Sketcher.Constraint("Parallel", 2, 4))
sketch1.addConstraint(Sketcher.Constraint("Parallel", 4, 6))
sketch1.addConstraint(Sketcher.Constraint("Parallel", 8, 10))
sketch1.addConstraint(Sketcher.Constraint("Parallel", 10, 12))
sketch1.addConstraint(Sketcher.Constraint("Perpendicular", 1, 19))
sketch1.addConstraint(Sketcher.Constraint("Perpendicular", 6, 20))
sketch1.addConstraint(Sketcher.Constraint("Parallel", 20, 22))
sketch1.addConstraint(Sketcher.Constraint("Parallel", 22, 24))
sketch1.addConstraint(Sketcher.Constraint("Perpendicular", 7, 25))
sketch1.addConstraint(Sketcher.Constraint("Perpendicular", 12, 26))
sketch1.addConstraint(Sketcher.Constraint("Parallel", 26, 28))
sketch1.addConstraint(Sketcher.Constraint("Parallel", 28, 30))
sketch1.addConstraint(Sketcher.Constraint("Perpendicular", 13, 31))
sketch1.addConstraint(Sketcher.Constraint("Parallel", 38, 40))
sketch1.addConstraint(Sketcher.Constraint("Parallel", 40, 42))
sketch1.addConstraint(Sketcher.Constraint("Parallel", 44, 46))
sketch1.addConstraint(Sketcher.Constraint("Parallel", 46, 48))
sketch1.addConstraint(Sketcher.Constraint("Perpendicular", 31, 49))
sketch1.addConstraint(Sketcher.Constraint("Parallel", 56, 58))
sketch1.addConstraint(Sketcher.Constraint("Parallel", 58, 60))
sketch1.addConstraint(Sketcher.Constraint("Parallel", 62, 64))
sketch1.addConstraint(Sketcher.Constraint("Parallel", 64, 66))
sketch1.addConstraint(Sketcher.Constraint("Perpendicular", 49, 67))
sketch1.addConstraint(Sketcher.Constraint("Horizontal", 16, 2, 17, 1))
sketch1.addConstraint(Sketcher.Constraint("Vertical", 34, 2, 35, 1))
sketch1.addConstraint(Sketcher.Constraint("Equal", 68, 14))
sketch1.addConstraint(Sketcher.Constraint("Equal", 70, 16))
sketch1.addConstraint(Sketcher.Constraint("Equal", 36, 18))
sketch1.addConstraint(Sketcher.Constraint("Equal", 1, 7))
sketch1.addConstraint(Sketcher.Constraint("Equal", 2, 8))
sketch1.addConstraint(Sketcher.Constraint("Equal", 4, 10))
sketch1.addConstraint(Sketcher.Constraint("Equal", 6, 12))
sketch1.addConstraint(Sketcher.Constraint("Equal", 7, 13))
sketch1.addConstraint(Sketcher.Constraint("Equal", 13, 19))
sketch1.addConstraint(Sketcher.Constraint("Equal", 8, 20))
sketch1.addConstraint(Sketcher.Constraint("Equal", 10, 22))
sketch1.addConstraint(Sketcher.Constraint("Equal", 12, 24))
sketch1.addConstraint(Sketcher.Constraint("Equal", 19, 25))
sketch1.addConstraint(Sketcher.Constraint("Equal", 20, 26))
sketch1.addConstraint(Sketcher.Constraint("Equal", 22, 28))
sketch1.addConstraint(Sketcher.Constraint("Equal", 24, 30))
sketch1.addConstraint(Sketcher.Constraint("Equal", 25, 31))
sketch1.addConstraint(Sketcher.Constraint("Diameter", 72, Q("2 mm")))
sketch1.addConstraint(Sketcher.Constraint("Radius", 5, Q("2 mm")))
sketch1.addConstraint(Sketcher.Constraint("Angle", 1, Q("135 deg")))
sketch1.addConstraint(Sketcher.Constraint("Angle", 2, Q("150 deg")))
sketch1.addConstraint(Sketcher.Constraint("Angle", 7, Q("105 deg")))
sketch1.addConstraint(Sketcher.Constraint("Angle", 8, Q("120 deg")))
sketch1.addConstraint(Sketcher.Constraint("Angle", 13, Q("75 deg")))
sketch1.addConstraint(Sketcher.Constraint("Diameter", 81, Q("25.670195 mm")))
sketch1.addConstraint(Sketcher.Constraint("DistanceX", 9, 2, -1, 1, Q("15.0403 mm")))
sketch1.addConstraint(Sketcher.Constraint("DistanceY", -1, 1, 27, 2, Q("15.0403 mm")))
sketch1.addConstraint(Sketcher.Constraint("DistanceX", 0, 2, 0, 1, Q("4.565563 mm")))
sketch1.addConstraint(Sketcher.Constraint("DistanceX", 32, 1, 32, 2, Q("5.100717 mm")))
sketch1.addConstraint(Sketcher.Constraint("DistanceX", 34, 2, 34, 1, Q("4.772823 mm")))
sketch1.addConstraint(Sketcher.Constraint("DistanceX", 3, 3, -1, 1, Q("6.810792 mm")))
sketch1.addConstraint(Sketcher.Constraint("DistanceY", 3, 3, -1, 1, Q("16.551912 mm")))
sketch1.addConstraint(Sketcher.Constraint("DistanceY", 5, 3, -1, 1, Q("21.637542 mm")))
sketch1.addConstraint(Sketcher.Constraint("DistanceY", 9, 3, -1, 1, Q("10.92898 mm")))
sketch1.addConstraint(Sketcher.Constraint("DistanceX", 11, 3, -1, 1, Q("14.262982 mm")))
sketch1.addConstraint(Sketcher.Constraint("DistanceX", 15, 3, -1, 1, Q("17.739772 mm")))
sketch1.addConstraint(Sketcher.Constraint("DistanceY", 17, 3, -1, 1, Q("7.37456 mm")))
sketch1.addConstraint(Sketcher.Constraint("DistanceX", 21, 3, -1, 1, Q("16.551912 mm")))
sketch1.addConstraint(Sketcher.Constraint("DistanceY", -1, 1, 21, 3, Q("6.810792 mm")))
sketch1.addConstraint(Sketcher.Constraint("DistanceX", 23, 3, -1, 1, Q("21.637542 mm")))
sketch1.addConstraint(Sketcher.Constraint("DistanceY", -1, 1, 29, 3, Q("14.262982 mm")))
sketch1.addConstraint(Sketcher.Constraint("DistanceX", 1, 2, -1, 1, Q("1.893441 mm")))
pad1 = doc.addObject("PartDesign::Pad", "Pad")
body.addObject(pad1)
pad1.Profile = sketch1
pad1.Length = 2
pad1.Reversed = True

doc.recompute()
